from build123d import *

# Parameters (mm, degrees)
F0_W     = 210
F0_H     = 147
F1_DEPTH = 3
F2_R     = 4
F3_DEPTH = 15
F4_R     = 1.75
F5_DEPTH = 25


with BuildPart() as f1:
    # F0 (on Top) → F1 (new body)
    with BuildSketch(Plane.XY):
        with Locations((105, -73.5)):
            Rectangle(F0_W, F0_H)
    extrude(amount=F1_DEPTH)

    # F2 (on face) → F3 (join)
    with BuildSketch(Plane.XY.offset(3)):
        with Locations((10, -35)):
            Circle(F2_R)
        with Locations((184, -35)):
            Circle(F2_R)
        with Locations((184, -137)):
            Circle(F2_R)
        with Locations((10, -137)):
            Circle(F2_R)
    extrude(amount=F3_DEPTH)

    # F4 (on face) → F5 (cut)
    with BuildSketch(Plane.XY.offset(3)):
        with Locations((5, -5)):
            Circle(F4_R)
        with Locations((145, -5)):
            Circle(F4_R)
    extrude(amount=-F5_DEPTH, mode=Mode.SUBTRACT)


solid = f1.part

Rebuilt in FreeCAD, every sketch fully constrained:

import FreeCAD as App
import Part
import Sketcher
Q = App.Units.Quantity


def add_polygon(sketch, points):
    """Adds a closed chain of lines whose ends are joined by coincident constraints."""
    first, n = sketch.GeometryCount, len(points)
    for a, b in zip(points, points[1:] + points[:1]):
        sketch.addGeometry(Part.LineSegment(App.Vector(*a, 0), App.Vector(*b, 0)), False)
    for i in range(n):
        sketch.addConstraint(Sketcher.Constraint("Coincident", first + i, 2, first + (i + 1) % n, 1))

doc = App.newDocument("Part")
params = doc.addObject("Spreadsheet::Sheet", "Params")
for row, (alias, value) in enumerate([
    ("sketch1_width", "210 mm"),
    ("sketch1_height", "147 mm"),
    ("pad1_length", "3 mm"),
    ("sketch2_diameter", "8 mm"),
    ("pad2_length", "15 mm"),
    ("sketch3_diameter", "3.5 mm"),
    ("pocket1_length", "25 mm"),
], start=1):
    params.set(f"A{row}", alias)
    params.set(f"B{row}", "=" + value)
    params.setAlias(f"B{row}", alias)

body = doc.addObject("PartDesign::Body", "Body")

# Sketch on XY plane
sketch1 = body.newObject("Sketcher::SketchObject", "Sketch")
sketch1.AttachmentSupport = (doc.getObject("XY_Plane"), [""])
sketch1.MapMode = "FlatFace"
add_polygon(sketch1, [(0, 0), (0, -147), (210, -147), (210, 0)])  # lines 0-3
sketch1.addConstraint([
    Sketcher.Constraint("Vertical", 0),
    Sketcher.Constraint("Horizontal", 1),
    Sketcher.Constraint("Vertical", 2),
    Sketcher.Constraint("Horizontal", 3),
    Sketcher.Constraint("Coincident", 3, 2, -1, 1),
    Sketcher.Constraint("DistanceX", 1, 1, 1, 2, Q("210 mm")),
    Sketcher.Constraint("DistanceY", 0, 2, 0, 1, Q("147 mm")),
])
sketch1.setExpression("Constraints[9]", "Params.sketch1_width")
sketch1.setExpression("Constraints[10]", "Params.sketch1_height")
pad1 = body.newObject("PartDesign::Pad", "Pad")
pad1.Profile = sketch1
pad1.setExpression("Length", "Params.pad1_length")

# Sketch on XY plane
sketch2 = body.newObject("Sketcher::SketchObject", "Sketch001")
sketch2.AttachmentSupport = (doc.getObject("XY_Plane"), [""])
sketch2.MapMode = "FlatFace"
sketch2.AttachmentOffset = App.Placement(App.Vector(0, 0, 3), App.Rotation())
sketch2.addGeometry([
    Part.Circle(App.Vector(10, -35, 0), App.Vector(0, 0, 1), 4),
    Part.Circle(App.Vector(184, -35, 0), App.Vector(0, 0, 1), 4),
    Part.Circle(App.Vector(184, -137, 0), App.Vector(0, 0, 1), 4),
    Part.Circle(App.Vector(10, -137, 0), App.Vector(0, 0, 1), 4),
], False)
sketch2.addConstraint([
    Sketcher.Constraint("Equal", 0, 1),
    Sketcher.Constraint("Equal", 1, 2),
    Sketcher.Constraint("Equal", 2, 3),
    Sketcher.Constraint("Horizontal", 0, 3, 1, 3),
    Sketcher.Constraint("Horizontal", 2, 3, 3, 3),
    Sketcher.Constraint("Vertical", 1, 3, 2, 3),
    Sketcher.Constraint("Vertical", 0, 3, 3, 3),
    Sketcher.Constraint("Diameter", 0, Q("8 mm")),
    Sketcher.Constraint("DistanceX", -1, 1, 0, 3, Q("10 mm")),
    Sketcher.Constraint("DistanceY", 0, 3, -1, 1, Q("35 mm")),
    Sketcher.Constraint("DistanceX", -1, 1, 1, 3, Q("184 mm")),
    Sketcher.Constraint("DistanceY", 2, 3, -1, 1, Q("137 mm")),
])
sketch2.setExpression("Constraints[7]", "Params.sketch2_diameter")
pad2 = body.newObject("PartDesign::Pad", "Pad001")
pad2.Profile = sketch2
pad2.setExpression("Length", "Params.pad2_length")

# Sketch on XY plane
sketch3 = body.newObject("Sketcher::SketchObject", "Sketch002")
sketch3.AttachmentSupport = (doc.getObject("XY_Plane"), [""])
sketch3.MapMode = "FlatFace"
sketch3.AttachmentOffset = App.Placement(App.Vector(0, 0, 3), App.Rotation())
sketch3.addGeometry([
    Part.Circle(App.Vector(5, -5, 0), App.Vector(0, 0, 1), 1.75),
    Part.Circle(App.Vector(145, -5, 0), App.Vector(0, 0, 1), 1.75),
], False)
sketch3.addConstraint([
    Sketcher.Constraint("Equal", 0, 1),
    Sketcher.Constraint("Horizontal", 0, 3, 1, 3),
    Sketcher.Constraint("Diameter", 0, Q("3.5 mm")),
    Sketcher.Constraint("DistanceX", -1, 1, 0, 3, Q("5 mm")),
    Sketcher.Constraint("DistanceY", 0, 3, -1, 1, Q("5 mm")),
    Sketcher.Constraint("DistanceX", -1, 1, 1, 3, Q("145 mm")),
])
sketch3.setExpression("Constraints[2]", "Params.sketch3_diameter")
pocket1 = body.newObject("PartDesign::Pocket", "Pocket")
pocket1.Profile = sketch3
pocket1.setExpression("Length", "Params.pocket1_length")

doc.recompute()
